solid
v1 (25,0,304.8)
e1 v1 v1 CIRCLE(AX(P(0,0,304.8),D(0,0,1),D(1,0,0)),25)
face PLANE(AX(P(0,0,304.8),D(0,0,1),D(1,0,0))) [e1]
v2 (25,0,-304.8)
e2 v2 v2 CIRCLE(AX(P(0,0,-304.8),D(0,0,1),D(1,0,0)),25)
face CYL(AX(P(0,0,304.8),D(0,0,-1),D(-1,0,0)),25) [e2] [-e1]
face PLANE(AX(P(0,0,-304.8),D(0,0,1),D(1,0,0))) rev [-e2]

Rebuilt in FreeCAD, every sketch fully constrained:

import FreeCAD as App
import Part
import Sketcher

V = App.Vector
Q = App.Units.Quantity

doc = App.newDocument("Part")
body = doc.addObject("PartDesign::Body", "Body")

# Sketch on XY plane
sketch1 = body.newObject("Sketcher::SketchObject", "Sketch")
sketch1.AttachmentSupport = (doc.getObject("XY_Plane"), [""])
sketch1.MapMode = "FlatFace"
sketch1.addGeometry(Part.Circle(V(0, 0, 0), V(0, 0, 1), 25), False)
sketch1.addConstraint(Sketcher.Constraint("Coincident", 0, 3, -1, 1))
sketch1.addConstraint(Sketcher.Constraint("Diameter", 0, Q("50 mm")))
pad1 = body.newObject("PartDesign::Pad", "Pad")
pad1.Profile = sketch1
pad1.Type = "TwoLengths"
pad1.Length = 304.8
pad1.Length2 = 304.8

doc.recompute()
